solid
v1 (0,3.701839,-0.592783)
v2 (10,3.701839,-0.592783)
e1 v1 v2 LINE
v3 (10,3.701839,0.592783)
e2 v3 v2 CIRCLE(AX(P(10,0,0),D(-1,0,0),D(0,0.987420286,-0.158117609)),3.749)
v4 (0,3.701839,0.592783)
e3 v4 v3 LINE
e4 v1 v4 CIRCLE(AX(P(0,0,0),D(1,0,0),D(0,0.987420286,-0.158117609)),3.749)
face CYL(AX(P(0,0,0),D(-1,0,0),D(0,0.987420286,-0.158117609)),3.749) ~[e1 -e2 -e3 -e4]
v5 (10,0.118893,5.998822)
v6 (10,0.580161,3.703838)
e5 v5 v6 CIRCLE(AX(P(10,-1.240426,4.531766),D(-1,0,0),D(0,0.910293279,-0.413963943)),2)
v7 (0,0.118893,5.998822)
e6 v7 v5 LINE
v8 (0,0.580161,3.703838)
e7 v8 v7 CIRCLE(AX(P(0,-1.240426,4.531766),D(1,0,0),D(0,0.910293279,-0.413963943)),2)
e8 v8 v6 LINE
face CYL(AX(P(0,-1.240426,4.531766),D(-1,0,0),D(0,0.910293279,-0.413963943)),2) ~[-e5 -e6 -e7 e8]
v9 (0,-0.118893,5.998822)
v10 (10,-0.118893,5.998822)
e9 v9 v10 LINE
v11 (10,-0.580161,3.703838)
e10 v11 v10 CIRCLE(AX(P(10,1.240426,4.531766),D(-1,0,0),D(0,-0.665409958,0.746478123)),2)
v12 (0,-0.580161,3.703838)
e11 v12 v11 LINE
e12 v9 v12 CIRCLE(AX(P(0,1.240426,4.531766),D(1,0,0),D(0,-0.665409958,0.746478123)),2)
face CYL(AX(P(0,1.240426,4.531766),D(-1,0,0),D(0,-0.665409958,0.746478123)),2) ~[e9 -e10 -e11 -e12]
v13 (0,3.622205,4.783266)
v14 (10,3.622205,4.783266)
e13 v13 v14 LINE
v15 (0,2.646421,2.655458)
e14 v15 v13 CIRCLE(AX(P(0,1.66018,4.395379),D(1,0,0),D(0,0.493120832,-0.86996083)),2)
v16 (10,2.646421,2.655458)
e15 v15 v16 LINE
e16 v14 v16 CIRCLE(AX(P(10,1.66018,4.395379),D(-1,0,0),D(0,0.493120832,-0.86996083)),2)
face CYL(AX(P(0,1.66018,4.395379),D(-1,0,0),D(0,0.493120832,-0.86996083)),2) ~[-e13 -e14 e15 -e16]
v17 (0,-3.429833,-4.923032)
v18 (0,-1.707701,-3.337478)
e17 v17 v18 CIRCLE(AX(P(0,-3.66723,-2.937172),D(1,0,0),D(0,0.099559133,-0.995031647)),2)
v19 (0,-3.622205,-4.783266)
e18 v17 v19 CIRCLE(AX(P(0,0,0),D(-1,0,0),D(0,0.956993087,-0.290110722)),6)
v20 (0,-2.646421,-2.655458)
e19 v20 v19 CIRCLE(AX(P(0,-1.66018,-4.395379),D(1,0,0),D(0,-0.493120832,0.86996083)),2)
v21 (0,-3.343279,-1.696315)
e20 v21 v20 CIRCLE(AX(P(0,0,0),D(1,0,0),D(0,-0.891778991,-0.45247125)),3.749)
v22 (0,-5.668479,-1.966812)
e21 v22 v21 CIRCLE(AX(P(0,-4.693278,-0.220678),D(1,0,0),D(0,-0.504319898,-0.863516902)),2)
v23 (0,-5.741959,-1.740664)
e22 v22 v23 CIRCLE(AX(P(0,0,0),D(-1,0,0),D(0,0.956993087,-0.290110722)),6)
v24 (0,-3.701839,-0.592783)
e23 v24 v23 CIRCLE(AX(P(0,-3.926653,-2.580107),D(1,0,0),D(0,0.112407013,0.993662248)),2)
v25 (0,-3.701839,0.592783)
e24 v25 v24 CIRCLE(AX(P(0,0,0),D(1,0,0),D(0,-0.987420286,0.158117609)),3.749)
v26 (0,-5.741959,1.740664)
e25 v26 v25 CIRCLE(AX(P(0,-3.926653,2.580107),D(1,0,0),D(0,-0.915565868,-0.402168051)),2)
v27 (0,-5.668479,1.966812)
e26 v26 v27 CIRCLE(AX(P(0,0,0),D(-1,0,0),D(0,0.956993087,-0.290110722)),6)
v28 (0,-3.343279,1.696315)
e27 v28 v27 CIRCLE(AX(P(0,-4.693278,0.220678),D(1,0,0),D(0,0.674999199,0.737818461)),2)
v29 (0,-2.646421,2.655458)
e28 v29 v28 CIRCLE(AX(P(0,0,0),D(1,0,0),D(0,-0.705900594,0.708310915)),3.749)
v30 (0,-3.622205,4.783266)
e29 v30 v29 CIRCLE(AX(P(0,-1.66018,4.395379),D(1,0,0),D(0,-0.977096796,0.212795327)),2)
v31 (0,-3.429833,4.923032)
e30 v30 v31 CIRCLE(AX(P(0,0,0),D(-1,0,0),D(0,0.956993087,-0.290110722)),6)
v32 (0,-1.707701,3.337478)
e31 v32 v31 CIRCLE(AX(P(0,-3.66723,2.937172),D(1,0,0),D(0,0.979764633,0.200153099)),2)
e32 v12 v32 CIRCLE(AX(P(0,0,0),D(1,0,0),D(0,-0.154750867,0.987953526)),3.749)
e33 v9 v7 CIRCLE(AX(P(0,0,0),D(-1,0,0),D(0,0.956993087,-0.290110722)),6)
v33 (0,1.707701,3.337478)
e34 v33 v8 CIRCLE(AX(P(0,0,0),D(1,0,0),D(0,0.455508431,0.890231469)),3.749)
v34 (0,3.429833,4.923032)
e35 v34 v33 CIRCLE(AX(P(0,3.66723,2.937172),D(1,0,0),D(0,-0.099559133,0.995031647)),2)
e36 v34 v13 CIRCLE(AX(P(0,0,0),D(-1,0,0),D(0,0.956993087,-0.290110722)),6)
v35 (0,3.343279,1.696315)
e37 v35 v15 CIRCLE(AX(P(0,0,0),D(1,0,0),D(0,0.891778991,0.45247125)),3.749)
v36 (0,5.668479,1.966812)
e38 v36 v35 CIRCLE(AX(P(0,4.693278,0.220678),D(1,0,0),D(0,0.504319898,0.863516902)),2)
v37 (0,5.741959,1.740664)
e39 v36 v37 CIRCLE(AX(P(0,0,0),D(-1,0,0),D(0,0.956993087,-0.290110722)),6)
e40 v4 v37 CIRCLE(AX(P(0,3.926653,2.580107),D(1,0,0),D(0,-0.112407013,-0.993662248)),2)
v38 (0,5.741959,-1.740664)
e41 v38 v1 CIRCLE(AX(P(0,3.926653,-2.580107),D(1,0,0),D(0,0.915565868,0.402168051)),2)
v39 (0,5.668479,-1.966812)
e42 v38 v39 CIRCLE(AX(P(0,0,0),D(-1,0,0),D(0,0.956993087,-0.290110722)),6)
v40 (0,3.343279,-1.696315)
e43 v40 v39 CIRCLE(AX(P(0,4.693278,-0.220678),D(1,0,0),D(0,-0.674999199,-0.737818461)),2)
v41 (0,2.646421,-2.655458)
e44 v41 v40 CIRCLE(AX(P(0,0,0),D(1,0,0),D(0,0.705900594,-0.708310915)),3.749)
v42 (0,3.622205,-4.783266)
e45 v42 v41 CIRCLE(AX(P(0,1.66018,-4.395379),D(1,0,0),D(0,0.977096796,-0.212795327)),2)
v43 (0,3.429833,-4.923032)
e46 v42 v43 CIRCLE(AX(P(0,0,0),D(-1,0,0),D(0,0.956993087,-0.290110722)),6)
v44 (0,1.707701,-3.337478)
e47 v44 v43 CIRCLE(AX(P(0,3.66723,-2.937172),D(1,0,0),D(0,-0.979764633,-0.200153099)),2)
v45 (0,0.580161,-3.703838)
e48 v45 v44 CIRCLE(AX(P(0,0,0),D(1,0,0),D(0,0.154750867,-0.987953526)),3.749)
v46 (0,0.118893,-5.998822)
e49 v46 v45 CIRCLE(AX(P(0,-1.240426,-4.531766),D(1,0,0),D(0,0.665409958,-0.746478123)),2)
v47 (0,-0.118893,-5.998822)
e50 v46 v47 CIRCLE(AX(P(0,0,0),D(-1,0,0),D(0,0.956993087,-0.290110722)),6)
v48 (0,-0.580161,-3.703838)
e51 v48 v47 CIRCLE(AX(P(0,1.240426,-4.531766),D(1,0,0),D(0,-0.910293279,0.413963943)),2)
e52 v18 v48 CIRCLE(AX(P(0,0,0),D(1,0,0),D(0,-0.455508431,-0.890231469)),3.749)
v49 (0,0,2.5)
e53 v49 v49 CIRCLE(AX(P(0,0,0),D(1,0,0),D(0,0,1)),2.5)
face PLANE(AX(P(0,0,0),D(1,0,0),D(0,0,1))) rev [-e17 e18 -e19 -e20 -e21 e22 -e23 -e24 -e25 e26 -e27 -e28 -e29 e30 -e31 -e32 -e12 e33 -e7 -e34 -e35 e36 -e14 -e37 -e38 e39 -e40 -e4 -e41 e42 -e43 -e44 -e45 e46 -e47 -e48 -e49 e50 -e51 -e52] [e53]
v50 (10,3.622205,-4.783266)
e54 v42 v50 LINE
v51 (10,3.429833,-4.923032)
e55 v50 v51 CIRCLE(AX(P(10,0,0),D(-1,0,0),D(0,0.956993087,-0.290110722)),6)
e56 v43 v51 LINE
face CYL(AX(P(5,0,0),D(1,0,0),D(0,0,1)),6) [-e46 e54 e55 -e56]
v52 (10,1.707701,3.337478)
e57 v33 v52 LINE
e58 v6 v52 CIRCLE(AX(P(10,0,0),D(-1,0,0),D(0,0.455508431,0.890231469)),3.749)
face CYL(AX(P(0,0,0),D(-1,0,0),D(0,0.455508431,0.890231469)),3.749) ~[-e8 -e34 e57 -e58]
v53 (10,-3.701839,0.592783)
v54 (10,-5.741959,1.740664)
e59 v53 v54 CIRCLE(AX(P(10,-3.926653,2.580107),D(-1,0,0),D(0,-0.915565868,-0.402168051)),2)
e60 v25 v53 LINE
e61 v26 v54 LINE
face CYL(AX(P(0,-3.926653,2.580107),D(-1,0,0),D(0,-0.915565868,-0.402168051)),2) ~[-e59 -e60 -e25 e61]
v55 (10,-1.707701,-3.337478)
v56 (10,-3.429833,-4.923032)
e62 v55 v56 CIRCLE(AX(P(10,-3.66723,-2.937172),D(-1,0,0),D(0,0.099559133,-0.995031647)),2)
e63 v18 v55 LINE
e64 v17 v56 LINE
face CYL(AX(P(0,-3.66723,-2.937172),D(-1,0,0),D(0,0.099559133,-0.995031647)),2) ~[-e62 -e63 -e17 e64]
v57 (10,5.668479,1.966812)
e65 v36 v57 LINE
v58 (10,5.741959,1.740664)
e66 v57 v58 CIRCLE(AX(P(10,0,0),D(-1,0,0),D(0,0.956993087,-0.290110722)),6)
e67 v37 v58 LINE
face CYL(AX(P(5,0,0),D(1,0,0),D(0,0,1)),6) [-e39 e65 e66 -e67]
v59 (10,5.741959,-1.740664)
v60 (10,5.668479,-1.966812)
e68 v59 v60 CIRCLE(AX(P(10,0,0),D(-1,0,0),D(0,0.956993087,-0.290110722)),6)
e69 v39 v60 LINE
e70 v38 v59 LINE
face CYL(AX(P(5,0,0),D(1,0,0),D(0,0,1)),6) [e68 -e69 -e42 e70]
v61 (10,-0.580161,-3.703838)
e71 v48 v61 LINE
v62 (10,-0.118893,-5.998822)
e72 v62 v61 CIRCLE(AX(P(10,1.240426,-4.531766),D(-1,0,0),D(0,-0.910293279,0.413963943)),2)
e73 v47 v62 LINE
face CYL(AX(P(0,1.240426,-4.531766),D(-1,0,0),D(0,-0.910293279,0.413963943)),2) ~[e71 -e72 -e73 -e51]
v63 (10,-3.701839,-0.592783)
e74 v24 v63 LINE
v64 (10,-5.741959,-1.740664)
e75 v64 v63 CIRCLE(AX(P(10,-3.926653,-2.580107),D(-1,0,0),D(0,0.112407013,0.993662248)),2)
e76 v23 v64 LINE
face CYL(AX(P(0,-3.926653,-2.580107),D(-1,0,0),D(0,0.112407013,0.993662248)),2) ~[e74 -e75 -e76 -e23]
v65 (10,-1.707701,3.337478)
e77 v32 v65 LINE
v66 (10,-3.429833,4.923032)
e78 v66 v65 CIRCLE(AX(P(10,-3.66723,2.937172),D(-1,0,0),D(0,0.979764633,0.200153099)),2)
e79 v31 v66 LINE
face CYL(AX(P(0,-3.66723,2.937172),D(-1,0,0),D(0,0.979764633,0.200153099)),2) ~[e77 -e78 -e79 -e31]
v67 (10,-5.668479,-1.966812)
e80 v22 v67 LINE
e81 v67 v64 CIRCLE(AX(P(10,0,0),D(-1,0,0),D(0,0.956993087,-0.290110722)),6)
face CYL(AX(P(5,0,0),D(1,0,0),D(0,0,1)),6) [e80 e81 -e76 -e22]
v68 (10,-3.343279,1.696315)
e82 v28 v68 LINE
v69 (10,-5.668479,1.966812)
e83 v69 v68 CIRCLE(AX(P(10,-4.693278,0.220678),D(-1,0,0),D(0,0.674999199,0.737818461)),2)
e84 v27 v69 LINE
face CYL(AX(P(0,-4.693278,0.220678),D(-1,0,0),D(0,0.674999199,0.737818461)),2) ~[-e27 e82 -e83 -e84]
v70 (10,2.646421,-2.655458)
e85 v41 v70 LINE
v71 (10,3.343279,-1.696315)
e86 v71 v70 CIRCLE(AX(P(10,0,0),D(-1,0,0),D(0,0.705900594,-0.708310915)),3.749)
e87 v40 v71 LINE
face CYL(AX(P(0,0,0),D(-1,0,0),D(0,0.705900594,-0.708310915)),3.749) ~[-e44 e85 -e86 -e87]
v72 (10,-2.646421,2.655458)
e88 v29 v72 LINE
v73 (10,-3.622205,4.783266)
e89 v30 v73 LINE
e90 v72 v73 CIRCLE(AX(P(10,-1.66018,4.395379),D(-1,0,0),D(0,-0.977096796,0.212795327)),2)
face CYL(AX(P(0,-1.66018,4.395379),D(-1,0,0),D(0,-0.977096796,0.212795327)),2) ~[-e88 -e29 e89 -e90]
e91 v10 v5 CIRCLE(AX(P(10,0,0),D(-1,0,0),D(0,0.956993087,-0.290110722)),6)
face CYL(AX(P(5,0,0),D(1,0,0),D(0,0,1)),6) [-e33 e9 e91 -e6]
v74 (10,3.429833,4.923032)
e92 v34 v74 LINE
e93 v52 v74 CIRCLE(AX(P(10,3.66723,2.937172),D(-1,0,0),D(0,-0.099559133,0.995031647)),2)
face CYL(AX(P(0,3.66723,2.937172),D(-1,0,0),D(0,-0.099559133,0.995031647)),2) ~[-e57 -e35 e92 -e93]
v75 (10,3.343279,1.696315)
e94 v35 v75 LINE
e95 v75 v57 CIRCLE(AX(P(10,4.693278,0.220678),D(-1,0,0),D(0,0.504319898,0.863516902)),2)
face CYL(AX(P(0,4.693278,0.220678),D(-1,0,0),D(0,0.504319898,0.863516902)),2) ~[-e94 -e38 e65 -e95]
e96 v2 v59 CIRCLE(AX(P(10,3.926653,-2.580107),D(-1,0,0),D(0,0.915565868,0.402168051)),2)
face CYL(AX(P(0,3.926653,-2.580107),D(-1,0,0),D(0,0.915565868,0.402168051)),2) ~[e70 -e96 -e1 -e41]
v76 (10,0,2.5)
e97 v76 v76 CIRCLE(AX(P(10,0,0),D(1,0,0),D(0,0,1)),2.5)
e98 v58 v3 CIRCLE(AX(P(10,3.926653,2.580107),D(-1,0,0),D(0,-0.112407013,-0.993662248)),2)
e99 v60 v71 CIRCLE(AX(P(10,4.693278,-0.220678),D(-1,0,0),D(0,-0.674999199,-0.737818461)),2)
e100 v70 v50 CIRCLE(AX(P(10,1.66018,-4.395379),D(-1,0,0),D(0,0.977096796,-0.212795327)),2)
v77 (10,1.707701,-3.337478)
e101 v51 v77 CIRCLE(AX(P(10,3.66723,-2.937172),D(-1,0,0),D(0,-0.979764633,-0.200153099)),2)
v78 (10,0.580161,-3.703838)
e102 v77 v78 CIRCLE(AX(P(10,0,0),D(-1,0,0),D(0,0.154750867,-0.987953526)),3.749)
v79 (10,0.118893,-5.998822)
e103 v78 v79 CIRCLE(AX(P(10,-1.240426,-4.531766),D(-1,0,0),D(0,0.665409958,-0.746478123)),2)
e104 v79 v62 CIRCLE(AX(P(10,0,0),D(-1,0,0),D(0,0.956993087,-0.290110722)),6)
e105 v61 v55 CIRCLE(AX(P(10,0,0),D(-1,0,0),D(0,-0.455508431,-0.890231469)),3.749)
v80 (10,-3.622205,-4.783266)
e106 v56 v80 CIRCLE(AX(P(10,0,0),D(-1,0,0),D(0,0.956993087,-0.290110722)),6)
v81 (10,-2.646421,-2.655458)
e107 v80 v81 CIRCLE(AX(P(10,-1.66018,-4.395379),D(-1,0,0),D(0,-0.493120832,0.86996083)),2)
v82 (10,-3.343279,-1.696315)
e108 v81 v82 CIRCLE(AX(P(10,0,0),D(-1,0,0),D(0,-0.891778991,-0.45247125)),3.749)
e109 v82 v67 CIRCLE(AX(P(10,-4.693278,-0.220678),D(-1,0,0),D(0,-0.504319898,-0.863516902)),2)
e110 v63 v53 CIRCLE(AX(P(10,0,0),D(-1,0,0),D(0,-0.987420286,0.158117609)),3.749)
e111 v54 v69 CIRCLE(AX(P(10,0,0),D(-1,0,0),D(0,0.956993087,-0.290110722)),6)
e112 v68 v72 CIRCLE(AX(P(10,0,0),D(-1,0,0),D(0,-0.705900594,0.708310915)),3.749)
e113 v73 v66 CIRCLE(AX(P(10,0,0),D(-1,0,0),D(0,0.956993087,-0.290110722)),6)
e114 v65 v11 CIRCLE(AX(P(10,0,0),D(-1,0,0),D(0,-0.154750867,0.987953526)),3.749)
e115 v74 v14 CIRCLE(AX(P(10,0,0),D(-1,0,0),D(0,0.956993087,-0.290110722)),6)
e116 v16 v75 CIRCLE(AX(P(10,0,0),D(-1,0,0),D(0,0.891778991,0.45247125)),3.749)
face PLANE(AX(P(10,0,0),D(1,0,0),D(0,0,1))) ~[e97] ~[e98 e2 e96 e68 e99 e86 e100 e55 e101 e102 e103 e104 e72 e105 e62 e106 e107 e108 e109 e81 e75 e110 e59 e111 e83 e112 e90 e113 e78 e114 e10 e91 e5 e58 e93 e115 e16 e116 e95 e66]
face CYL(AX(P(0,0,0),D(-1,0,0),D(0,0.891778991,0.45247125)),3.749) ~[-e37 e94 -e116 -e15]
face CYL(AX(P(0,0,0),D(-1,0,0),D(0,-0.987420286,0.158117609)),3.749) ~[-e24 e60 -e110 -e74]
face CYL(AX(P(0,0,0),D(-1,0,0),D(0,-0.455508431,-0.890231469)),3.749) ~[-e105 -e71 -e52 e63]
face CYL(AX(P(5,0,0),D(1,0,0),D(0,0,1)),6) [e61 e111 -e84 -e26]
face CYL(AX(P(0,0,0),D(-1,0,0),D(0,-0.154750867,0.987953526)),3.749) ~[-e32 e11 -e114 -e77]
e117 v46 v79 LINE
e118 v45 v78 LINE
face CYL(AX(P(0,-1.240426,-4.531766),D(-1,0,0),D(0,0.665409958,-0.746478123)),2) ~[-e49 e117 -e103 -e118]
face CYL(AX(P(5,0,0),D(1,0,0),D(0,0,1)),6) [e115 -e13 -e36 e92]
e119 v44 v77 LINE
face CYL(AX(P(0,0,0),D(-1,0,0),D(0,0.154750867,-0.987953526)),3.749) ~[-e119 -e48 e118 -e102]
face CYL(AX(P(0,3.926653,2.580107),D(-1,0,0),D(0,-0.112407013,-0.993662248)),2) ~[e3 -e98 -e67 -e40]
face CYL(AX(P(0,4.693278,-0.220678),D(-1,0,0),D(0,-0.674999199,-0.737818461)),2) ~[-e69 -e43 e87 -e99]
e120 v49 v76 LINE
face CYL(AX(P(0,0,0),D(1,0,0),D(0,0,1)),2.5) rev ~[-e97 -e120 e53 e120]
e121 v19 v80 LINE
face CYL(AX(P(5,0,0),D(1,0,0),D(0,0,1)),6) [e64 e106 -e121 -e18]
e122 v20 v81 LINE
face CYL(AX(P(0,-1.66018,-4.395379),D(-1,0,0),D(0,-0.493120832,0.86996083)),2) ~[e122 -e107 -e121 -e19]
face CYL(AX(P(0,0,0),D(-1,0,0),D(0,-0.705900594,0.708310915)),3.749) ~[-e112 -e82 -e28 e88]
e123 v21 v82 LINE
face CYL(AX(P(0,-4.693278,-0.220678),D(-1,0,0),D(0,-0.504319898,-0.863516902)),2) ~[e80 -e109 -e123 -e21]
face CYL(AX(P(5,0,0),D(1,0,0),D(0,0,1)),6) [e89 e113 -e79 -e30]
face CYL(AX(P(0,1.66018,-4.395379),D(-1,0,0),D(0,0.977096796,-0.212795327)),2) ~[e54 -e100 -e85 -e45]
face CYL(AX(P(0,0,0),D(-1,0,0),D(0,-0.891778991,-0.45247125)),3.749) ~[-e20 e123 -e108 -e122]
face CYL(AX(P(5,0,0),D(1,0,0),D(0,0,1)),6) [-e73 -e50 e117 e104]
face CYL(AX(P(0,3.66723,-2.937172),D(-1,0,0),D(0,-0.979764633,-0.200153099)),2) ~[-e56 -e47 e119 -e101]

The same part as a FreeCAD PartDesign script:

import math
import FreeCAD as App
import Part
import Sketcher
from FreeCAD import Vector
Q = App.Units.Quantity

doc = App.newDocument("Part")
body = doc.addObject("PartDesign::Body", "Body")

# Sketch on XZ plane
sketch1 = body.newObject("Sketcher::SketchObject", "Sketch")
sketch1.AttachmentSupport = (doc.getObject("XZ_Plane"), [""])
sketch1.MapMode = "FlatFace"
sketch1.addGeometry([
    Part.LineSegment(Vector(0, -6, 0), Vector(0, 0, 0)),
    Part.LineSegment(Vector(0, 0, 0), Vector(10, 0, 0)),
    Part.LineSegment(Vector(10, 0, 0), Vector(10, -6, 0)),
    Part.LineSegment(Vector(10, -6, 0), Vector(0, -6, 0)),
], False)
sketch1.addConstraint([
    Sketcher.Constraint("Coincident", 0, 2, 1, 1),
    Sketcher.Constraint("Coincident", 1, 2, 2, 1),
    Sketcher.Constraint("Coincident", 2, 2, 3, 1),
    Sketcher.Constraint("Coincident", 3, 2, 0, 1),
    Sketcher.Constraint("Vertical", 0),
    Sketcher.Constraint("Horizontal", 1),
    Sketcher.Constraint("Vertical", 2),
    Sketcher.Constraint("Horizontal", 3),
    Sketcher.Constraint("Coincident", 0, 2, -1, 1),
    Sketcher.Constraint("DistanceX", 1, 1, 1, 2, Q("10 mm")),
    Sketcher.Constraint("DistanceY", 0, 1, 0, 2, Q("6 mm")),
])
revolution = body.newObject("PartDesign::Revolution", "Revolution")
revolution.Profile = sketch1
revolution.ReferenceAxis = (sketch1, ["H_Axis"])
revolution.Angle = 360

# Sketch on YZ plane
sketch2 = body.newObject("Sketcher::SketchObject", "Sketch001")
sketch2.AttachmentSupport = (doc.getObject("YZ_Plane"), [""])
sketch2.MapMode = "FlatFace"
sketch2.addGeometry([
    Part.ArcOfCircle(Part.Circle(Vector(0, 0, 0), Vector(0, 0, 1), 3.7), math.radians(-9.1), math.radians(9.1)),
    Part.ArcOfCircle(Part.Circle(Vector(3.9, -2.6, 0), Vector(0, 0, 1), 2), math.radians(24), math.radians(96)),
    Part.ArcOfCircle(Part.Circle(Vector(0, 0, 0), Vector(0, 0, 1), 6), math.radians(-17), math.radians(17)),
    Part.ArcOfCircle(Part.Circle(Vector(3.9, 2.6, 0), Vector(0, 0, 1), 2), math.radians(-96), math.radians(-24)),
], False)
sketch2.addConstraint([
    Sketcher.Constraint("Coincident", 0, 1, 1, 2),
    Sketcher.Constraint("Coincident", 1, 1, 2, 1),
    Sketcher.Constraint("Coincident", 2, 2, 3, 2),
    Sketcher.Constraint("Coincident", 3, 1, 0, 2),
    Sketcher.Constraint("Coincident", 0, 3, -1, 1),
    Sketcher.Constraint("Coincident", 2, 3, -1, 1),
    Sketcher.Constraint("Equal", 1, 3),
    Sketcher.Constraint("Symmetric", 1, 3, 3, 3, -1),
    Sketcher.Constraint("Radius", 1, Q("2 mm")),
    Sketcher.Constraint("Radius", 0, Q("3.749 mm")),
    Sketcher.Constraint("Radius", 2, Q("6.0254 mm")),
    Sketcher.Constraint("DistanceX", -1, 1, 0, 1, Q("3.701839 mm")),
    Sketcher.Constraint("DistanceY", 1, 1, -1, 1, Q("1.775771 mm")),
])
pocket1 = body.newObject("PartDesign::Pocket", "Pocket")
pocket1.Profile = sketch2
pocket1.Type = "ThroughAll"
pocket1.Reversed = True
doc.recompute()

polarpattern = body.newObject("PartDesign::PolarPattern", "PolarPattern")
polarpattern.Originals = [pocket1]
polarpattern.Axis = (doc.getObject("X_Axis"), [""])
polarpattern.Angle = 360
polarpattern.Occurrences = 10
body.Tip = polarpattern

# Sketch on YZ plane
sketch3 = body.newObject("Sketcher::SketchObject", "Sketch002")
sketch3.AttachmentSupport = (doc.getObject("YZ_Plane"), [""])
sketch3.MapMode = "FlatFace"
sketch3.addGeometry(Part.Circle(Vector(0, 0, 0), Vector(0, 0, 1), 2.5), False)
sketch3.addConstraint([
    Sketcher.Constraint("Coincident", 0, 3, -1, 1),
    Sketcher.Constraint("Diameter", 0, Q("5 mm")),
])
pocket2 = body.newObject("PartDesign::Pocket", "Pocket001")
pocket2.Profile = sketch3
pocket2.Length = 100.000102
pocket2.Midplane = True

doc.recompute()
